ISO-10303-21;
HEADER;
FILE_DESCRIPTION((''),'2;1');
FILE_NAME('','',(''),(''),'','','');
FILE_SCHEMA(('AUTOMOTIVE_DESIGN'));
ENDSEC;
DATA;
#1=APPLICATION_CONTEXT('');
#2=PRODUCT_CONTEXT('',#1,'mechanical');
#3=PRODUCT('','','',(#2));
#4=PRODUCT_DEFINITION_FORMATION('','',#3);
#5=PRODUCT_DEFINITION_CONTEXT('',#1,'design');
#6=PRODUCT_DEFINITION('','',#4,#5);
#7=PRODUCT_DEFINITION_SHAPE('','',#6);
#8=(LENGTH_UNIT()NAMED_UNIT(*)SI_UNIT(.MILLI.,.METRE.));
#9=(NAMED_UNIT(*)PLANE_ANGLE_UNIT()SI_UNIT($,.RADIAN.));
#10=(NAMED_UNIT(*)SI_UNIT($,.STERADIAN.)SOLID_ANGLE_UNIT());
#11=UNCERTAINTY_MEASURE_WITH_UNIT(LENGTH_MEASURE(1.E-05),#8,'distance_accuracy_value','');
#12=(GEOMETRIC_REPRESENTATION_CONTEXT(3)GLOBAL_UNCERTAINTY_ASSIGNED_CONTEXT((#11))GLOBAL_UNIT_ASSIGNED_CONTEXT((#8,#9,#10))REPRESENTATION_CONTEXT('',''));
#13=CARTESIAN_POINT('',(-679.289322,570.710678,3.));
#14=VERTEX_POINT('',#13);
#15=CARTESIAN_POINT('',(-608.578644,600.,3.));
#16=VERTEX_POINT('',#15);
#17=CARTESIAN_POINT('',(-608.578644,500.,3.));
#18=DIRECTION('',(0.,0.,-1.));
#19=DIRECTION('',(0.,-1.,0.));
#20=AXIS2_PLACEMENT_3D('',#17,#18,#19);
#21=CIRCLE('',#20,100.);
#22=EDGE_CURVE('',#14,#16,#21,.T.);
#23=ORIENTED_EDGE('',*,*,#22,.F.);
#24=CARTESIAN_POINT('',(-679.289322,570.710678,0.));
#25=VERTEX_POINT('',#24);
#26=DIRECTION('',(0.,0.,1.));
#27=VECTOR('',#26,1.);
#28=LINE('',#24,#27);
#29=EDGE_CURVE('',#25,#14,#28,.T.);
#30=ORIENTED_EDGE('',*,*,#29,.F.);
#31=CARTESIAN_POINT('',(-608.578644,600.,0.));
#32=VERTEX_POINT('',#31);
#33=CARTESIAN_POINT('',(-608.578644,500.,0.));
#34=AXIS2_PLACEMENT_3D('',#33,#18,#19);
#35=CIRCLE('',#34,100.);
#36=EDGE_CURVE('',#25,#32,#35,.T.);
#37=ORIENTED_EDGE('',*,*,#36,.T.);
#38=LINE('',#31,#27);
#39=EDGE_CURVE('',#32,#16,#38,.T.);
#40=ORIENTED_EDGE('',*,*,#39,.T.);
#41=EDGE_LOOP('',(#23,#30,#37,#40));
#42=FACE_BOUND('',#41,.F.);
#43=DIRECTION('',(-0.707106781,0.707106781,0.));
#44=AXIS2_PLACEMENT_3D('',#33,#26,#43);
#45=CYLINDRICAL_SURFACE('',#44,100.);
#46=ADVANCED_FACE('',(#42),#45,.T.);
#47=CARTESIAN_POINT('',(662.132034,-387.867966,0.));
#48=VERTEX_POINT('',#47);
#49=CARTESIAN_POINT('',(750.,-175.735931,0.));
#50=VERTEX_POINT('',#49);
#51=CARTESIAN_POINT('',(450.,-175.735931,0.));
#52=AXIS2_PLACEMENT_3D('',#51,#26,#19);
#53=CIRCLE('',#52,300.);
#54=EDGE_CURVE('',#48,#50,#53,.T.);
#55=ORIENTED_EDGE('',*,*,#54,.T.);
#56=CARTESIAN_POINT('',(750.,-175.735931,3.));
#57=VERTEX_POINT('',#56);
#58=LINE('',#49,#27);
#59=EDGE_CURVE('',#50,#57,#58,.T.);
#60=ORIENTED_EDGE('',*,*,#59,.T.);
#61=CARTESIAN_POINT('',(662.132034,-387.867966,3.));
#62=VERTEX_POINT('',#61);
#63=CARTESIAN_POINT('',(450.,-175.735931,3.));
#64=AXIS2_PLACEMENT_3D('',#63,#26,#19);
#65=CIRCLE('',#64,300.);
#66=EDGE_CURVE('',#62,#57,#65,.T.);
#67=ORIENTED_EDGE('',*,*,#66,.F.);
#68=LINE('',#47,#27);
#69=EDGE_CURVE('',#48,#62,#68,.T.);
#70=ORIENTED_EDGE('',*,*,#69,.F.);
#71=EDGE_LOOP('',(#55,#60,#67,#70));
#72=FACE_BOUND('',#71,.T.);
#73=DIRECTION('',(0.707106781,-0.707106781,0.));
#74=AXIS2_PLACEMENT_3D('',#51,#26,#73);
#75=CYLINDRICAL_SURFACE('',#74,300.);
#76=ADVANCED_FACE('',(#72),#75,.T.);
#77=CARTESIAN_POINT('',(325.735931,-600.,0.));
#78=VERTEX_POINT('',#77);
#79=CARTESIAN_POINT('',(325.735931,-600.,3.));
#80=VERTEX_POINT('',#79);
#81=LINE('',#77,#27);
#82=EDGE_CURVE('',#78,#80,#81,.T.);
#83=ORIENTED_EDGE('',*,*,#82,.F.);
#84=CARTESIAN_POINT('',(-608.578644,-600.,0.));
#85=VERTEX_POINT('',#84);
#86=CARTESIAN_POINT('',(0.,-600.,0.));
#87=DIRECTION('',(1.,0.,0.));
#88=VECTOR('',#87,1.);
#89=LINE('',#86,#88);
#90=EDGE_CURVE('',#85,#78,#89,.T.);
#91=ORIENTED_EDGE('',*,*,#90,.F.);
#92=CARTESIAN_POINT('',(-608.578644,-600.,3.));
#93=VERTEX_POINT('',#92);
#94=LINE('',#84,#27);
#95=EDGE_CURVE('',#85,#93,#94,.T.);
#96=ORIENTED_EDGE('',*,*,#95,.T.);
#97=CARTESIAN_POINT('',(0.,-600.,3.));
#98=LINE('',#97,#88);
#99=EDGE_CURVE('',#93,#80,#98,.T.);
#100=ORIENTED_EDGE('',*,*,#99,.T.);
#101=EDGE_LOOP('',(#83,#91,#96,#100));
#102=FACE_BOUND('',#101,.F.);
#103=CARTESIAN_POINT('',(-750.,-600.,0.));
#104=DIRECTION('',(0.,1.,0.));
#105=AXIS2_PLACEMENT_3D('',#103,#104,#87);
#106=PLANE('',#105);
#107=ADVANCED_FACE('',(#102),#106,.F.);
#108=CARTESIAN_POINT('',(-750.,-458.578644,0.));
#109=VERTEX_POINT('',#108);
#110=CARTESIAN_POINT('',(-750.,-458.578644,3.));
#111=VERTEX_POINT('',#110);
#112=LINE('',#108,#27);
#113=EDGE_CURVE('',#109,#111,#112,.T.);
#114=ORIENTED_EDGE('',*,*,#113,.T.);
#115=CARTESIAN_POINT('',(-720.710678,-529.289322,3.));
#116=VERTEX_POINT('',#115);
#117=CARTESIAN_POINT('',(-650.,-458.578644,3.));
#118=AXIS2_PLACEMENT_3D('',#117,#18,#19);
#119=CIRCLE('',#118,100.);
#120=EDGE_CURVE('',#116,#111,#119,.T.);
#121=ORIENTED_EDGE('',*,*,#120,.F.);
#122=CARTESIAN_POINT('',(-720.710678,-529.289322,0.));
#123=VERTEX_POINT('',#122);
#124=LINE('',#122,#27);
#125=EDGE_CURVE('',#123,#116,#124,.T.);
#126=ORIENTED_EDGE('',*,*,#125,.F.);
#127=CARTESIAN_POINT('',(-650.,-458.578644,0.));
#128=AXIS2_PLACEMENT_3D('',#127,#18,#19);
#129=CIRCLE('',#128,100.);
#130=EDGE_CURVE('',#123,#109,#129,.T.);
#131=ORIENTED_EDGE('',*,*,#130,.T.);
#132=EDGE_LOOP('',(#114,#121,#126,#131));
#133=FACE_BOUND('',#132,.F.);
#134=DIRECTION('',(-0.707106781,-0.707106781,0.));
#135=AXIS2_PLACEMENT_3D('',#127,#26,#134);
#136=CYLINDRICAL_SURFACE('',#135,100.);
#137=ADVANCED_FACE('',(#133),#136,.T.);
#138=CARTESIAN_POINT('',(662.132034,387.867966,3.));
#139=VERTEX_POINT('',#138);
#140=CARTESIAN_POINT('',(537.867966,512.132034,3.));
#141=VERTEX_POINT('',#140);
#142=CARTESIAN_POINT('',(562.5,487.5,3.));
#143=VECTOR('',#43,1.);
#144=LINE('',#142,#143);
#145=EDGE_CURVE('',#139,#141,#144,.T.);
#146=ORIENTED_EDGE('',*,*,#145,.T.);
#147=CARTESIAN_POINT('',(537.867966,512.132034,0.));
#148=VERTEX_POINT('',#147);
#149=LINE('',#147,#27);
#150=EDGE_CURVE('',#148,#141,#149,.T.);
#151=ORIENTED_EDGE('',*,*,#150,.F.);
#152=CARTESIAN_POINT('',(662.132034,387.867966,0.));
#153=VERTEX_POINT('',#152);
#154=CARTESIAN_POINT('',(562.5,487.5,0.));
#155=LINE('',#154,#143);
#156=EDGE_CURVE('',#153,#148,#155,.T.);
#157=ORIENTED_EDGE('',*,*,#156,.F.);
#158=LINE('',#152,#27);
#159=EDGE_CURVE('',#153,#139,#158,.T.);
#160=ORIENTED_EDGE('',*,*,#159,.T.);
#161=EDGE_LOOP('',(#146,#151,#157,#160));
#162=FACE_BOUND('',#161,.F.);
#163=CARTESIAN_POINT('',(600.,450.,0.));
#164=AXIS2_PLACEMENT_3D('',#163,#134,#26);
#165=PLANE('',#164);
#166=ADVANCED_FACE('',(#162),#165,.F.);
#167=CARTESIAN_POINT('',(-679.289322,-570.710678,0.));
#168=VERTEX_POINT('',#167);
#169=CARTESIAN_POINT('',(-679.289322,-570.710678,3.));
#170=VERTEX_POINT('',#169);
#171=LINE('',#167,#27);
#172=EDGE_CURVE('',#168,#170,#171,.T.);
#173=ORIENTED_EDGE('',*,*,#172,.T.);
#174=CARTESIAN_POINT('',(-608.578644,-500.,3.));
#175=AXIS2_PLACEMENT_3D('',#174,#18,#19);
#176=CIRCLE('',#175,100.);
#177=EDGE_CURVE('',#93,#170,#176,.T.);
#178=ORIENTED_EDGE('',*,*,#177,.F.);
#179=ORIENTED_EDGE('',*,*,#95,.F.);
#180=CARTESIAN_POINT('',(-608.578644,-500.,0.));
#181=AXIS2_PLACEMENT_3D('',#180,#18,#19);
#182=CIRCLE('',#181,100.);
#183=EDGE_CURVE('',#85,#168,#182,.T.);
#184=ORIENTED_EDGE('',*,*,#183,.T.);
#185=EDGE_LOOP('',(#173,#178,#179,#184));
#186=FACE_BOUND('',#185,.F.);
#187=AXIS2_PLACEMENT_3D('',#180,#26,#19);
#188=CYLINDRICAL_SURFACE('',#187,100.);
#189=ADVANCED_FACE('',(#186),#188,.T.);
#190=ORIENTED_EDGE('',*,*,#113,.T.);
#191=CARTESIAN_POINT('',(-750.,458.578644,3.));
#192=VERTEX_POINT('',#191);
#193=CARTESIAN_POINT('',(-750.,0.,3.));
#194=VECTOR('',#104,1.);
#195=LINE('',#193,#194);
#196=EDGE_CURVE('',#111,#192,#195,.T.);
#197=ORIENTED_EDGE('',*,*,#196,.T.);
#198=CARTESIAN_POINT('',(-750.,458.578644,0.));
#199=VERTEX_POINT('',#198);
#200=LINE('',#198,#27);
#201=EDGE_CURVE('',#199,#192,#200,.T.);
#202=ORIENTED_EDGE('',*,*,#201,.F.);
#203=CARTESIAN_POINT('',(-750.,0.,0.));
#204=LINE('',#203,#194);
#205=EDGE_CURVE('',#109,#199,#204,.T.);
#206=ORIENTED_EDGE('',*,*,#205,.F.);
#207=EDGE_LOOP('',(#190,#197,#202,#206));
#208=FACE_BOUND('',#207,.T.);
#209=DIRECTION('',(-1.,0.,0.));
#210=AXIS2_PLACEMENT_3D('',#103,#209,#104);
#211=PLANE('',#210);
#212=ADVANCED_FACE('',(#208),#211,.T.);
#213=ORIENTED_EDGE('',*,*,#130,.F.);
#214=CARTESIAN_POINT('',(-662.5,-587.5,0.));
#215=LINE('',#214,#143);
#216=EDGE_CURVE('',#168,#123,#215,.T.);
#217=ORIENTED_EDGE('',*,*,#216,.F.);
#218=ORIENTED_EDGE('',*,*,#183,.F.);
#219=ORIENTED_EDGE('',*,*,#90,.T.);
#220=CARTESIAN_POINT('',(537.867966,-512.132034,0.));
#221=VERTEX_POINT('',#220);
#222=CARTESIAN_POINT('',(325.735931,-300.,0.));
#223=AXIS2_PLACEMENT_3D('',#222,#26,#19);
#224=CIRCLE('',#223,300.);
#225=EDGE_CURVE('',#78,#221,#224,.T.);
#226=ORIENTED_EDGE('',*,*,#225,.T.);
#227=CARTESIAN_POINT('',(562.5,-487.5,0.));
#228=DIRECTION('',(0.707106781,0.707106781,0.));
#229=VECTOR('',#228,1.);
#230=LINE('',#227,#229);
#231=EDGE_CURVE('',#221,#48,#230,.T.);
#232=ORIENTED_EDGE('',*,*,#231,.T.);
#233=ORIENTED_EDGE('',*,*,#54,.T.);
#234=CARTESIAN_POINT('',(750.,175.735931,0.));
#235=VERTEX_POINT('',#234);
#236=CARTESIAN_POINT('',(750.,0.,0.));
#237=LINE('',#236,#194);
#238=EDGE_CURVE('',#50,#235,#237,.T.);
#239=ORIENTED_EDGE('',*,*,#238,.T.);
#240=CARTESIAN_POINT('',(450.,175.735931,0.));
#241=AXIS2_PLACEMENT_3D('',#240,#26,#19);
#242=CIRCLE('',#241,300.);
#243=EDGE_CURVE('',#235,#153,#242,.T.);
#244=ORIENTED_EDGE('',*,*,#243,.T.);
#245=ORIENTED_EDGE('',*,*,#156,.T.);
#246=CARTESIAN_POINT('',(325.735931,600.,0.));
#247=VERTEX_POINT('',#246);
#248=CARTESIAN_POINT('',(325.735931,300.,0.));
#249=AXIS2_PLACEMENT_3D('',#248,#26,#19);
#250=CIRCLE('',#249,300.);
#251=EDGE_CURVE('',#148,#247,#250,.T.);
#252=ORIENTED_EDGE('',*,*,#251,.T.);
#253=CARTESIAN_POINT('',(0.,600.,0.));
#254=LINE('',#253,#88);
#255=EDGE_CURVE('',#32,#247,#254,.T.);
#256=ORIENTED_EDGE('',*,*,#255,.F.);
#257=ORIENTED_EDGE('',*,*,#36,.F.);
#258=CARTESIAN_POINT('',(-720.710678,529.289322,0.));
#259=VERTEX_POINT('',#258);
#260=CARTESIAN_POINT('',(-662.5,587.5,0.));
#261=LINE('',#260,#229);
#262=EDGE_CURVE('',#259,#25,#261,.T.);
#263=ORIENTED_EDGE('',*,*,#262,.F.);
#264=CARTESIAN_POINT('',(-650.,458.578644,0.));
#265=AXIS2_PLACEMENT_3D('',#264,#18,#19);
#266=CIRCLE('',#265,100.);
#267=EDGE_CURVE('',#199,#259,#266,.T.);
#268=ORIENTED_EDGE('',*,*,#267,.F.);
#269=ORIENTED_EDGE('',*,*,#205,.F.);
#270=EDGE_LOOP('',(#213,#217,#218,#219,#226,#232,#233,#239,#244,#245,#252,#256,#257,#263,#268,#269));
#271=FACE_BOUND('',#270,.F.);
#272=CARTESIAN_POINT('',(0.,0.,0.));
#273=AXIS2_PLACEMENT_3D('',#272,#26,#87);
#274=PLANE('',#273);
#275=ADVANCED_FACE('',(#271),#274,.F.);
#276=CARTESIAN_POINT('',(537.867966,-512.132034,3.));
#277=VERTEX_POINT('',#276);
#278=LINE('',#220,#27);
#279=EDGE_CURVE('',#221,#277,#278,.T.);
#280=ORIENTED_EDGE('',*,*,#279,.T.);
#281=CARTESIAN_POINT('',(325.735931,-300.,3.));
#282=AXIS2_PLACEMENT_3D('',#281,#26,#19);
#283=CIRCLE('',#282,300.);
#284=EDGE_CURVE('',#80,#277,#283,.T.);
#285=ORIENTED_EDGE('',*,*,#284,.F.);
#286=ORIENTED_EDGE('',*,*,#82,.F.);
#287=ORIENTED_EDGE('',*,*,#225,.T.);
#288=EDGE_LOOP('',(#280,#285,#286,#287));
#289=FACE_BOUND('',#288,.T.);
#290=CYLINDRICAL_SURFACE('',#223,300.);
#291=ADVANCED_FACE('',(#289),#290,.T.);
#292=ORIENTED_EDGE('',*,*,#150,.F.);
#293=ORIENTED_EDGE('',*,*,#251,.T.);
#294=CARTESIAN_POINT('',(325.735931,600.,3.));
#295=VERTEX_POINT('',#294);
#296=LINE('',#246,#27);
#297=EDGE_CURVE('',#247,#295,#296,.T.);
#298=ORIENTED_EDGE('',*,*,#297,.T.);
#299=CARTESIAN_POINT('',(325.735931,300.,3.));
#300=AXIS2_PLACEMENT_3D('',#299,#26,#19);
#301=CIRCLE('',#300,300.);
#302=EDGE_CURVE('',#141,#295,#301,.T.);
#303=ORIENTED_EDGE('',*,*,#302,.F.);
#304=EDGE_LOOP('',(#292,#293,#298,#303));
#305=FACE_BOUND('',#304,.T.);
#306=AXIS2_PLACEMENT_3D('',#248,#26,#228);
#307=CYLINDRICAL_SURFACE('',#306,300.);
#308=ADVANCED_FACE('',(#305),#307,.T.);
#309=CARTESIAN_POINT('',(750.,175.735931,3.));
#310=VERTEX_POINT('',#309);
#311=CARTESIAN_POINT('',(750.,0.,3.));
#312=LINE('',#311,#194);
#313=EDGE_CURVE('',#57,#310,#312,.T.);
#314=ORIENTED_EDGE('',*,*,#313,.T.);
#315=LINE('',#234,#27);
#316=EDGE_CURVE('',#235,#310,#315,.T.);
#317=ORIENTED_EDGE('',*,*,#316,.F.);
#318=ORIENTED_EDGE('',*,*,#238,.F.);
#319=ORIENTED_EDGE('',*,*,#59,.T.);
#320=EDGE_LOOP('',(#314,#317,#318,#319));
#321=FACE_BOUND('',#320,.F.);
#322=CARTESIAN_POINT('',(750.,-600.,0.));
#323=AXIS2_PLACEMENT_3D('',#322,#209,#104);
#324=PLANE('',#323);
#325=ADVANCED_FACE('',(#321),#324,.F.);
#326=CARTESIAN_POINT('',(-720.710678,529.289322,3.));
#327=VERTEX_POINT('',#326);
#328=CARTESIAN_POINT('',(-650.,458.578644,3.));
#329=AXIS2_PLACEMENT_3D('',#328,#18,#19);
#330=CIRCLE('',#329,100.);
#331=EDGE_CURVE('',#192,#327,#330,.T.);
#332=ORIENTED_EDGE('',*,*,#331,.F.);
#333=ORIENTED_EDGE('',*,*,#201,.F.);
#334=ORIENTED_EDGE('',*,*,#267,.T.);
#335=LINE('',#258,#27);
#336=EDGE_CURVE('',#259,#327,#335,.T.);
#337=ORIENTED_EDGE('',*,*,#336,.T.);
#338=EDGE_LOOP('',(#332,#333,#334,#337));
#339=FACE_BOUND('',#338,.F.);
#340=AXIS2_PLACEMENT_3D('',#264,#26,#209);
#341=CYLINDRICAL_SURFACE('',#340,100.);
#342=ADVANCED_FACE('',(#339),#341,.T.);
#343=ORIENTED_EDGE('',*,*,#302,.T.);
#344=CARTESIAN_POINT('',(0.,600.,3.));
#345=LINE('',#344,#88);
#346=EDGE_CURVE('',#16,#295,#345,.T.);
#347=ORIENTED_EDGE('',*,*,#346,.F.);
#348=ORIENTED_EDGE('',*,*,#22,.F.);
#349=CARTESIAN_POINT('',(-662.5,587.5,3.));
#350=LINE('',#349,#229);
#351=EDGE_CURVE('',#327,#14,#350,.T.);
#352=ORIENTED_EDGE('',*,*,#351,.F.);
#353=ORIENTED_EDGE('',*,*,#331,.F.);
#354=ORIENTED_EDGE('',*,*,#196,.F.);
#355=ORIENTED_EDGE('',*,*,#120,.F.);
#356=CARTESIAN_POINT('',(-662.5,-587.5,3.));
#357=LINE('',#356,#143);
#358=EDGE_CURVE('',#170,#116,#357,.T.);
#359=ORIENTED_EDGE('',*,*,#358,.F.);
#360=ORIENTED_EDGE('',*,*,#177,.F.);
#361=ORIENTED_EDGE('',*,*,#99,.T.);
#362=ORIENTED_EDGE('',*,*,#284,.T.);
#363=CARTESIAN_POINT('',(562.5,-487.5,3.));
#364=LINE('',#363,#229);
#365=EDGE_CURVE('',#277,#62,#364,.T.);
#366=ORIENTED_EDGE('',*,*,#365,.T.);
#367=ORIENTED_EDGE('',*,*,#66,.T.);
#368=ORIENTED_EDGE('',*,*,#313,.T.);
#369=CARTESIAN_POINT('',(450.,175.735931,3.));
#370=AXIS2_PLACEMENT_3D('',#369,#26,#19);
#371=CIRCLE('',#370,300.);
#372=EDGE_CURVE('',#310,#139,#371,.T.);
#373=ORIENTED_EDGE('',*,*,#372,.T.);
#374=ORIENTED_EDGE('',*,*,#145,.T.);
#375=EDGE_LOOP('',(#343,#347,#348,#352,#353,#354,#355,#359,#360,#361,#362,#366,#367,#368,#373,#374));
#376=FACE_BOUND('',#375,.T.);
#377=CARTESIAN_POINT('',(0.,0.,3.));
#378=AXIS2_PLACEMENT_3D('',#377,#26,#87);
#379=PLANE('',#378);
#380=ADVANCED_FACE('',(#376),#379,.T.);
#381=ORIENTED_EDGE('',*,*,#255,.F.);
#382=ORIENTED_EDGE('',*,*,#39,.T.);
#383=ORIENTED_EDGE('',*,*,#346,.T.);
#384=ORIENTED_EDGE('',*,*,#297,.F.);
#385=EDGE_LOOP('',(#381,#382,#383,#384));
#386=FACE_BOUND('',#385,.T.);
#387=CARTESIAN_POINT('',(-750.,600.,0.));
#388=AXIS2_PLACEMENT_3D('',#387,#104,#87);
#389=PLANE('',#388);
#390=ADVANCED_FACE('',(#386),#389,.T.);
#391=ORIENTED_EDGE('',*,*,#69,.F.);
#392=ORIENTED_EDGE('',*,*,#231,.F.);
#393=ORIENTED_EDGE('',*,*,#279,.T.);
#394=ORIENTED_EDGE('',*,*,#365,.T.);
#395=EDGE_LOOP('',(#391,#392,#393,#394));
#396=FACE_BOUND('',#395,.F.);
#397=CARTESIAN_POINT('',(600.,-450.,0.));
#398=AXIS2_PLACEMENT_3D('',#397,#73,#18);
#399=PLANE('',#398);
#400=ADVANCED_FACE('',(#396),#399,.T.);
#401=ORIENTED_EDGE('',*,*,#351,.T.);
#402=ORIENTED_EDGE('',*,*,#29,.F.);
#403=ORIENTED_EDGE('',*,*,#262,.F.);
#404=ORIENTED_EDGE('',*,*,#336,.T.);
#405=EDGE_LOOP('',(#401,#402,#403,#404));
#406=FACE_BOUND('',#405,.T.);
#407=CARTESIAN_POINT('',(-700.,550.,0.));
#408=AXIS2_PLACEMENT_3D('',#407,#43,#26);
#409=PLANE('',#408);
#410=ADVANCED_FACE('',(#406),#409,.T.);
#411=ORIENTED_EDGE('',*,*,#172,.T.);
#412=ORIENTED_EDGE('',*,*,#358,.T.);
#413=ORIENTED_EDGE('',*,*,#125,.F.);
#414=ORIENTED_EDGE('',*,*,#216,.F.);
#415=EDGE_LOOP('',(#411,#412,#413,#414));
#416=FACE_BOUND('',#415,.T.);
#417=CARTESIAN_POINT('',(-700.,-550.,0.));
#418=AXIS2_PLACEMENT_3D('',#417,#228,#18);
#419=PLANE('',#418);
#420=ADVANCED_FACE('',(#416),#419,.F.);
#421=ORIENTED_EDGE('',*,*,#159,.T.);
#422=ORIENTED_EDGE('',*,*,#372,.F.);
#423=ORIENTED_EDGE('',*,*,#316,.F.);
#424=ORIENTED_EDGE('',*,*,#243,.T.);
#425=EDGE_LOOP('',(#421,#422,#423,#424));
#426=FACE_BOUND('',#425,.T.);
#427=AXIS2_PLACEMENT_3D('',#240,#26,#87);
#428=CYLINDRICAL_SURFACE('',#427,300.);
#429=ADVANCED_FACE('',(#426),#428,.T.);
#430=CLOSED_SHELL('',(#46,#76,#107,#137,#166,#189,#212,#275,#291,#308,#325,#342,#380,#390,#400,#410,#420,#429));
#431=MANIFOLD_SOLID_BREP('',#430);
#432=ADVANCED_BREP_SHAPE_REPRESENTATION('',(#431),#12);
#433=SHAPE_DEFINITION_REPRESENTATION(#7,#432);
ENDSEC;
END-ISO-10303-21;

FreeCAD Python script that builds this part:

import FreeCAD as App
import Part
import Sketcher

V = App.Vector
Q = App.Units.Quantity


def edges_at(feature, points):
    """Names of the edges that pass closest to the given points."""
    edges = feature.Shape.Edges
    near = lambda p: min(range(len(edges)), key=lambda i: edges[i].distToShape(Part.Vertex(*p))[0])
    return sorted({f"Edge{near(p) + 1}" for p in points})

doc = App.newDocument("Part")
body = doc.addObject("PartDesign::Body", "Body")

sketch1 = body.newObject("Sketcher::SketchObject", "Sketch")
sketch1.AttachmentSupport = (doc.getObject("XY_Plane"), [""])
sketch1.MapMode = "FlatFace"
sketch1.addGeometry([
    Part.LineSegment(V(-750, 600, 0), V(-750, -600, 0)),
    Part.LineSegment(V(-750, -600, 0), V(750, -600, 0)),
    Part.LineSegment(V(750, -600, 0), V(750, 600, 0)),
    Part.LineSegment(V(750, 600, 0), V(-750, 600, 0)),
], False)
sketch1.addConstraint([
    Sketcher.Constraint("Coincident", 0, 2, 1, 1),
    Sketcher.Constraint("Coincident", 1, 2, 2, 1),
    Sketcher.Constraint("Coincident", 2, 2, 3, 1),
    Sketcher.Constraint("Coincident", 3, 2, 0, 1),
    Sketcher.Constraint("Vertical", 0),
    Sketcher.Constraint("Horizontal", 1),
    Sketcher.Constraint("Vertical", 2),
    Sketcher.Constraint("Horizontal", 3),
    Sketcher.Constraint("Symmetric", 0, 2, 2, 2, -1, 1),
    Sketcher.Constraint("DistanceX", 1, 1, 1, 2, Q("1500 mm")),
    Sketcher.Constraint("DistanceY", 0, 2, 0, 1, Q("1200 mm")),
])
pad1 = body.newObject("PartDesign::Pad", "Pad")
pad1.Profile = sketch1
pad1.Length = 3
doc.recompute()

chamfer = body.newObject("PartDesign::Chamfer", "Chamfer")
chamfer.Base = (pad1, edges_at(pad1, [(750, -600, 1.5), (750, 600, 1.5)]))
chamfer.Size = 300
doc.recompute()

chamfer2 = body.newObject("PartDesign::Chamfer", "Chamfer001")
chamfer2.Base = (chamfer, edges_at(chamfer, [(-750, -600, 1.5), (-750, 600, 1.5)]))
chamfer2.Size = 100
doc.recompute()

fillet = body.newObject("PartDesign::Fillet", "Fillet")
fillet.Base = (chamfer2, edges_at(chamfer2, [
    (750, -300, 1.5),
    (450, -600, 1.5),
    (750, 300, 1.5),
    (450, 600, 1.5),
]))
fillet.Radius = 300
doc.recompute()

fillet2 = body.newObject("PartDesign::Fillet", "Fillet001")
fillet2.Base = (fillet, edges_at(fillet, [
    (-750, -500, 1.5),
    (-650, -600, 1.5),
    (-650, 600, 1.5),
    (-750, 500, 1.5),
]))
fillet2.Radius = 100

doc.recompute()
